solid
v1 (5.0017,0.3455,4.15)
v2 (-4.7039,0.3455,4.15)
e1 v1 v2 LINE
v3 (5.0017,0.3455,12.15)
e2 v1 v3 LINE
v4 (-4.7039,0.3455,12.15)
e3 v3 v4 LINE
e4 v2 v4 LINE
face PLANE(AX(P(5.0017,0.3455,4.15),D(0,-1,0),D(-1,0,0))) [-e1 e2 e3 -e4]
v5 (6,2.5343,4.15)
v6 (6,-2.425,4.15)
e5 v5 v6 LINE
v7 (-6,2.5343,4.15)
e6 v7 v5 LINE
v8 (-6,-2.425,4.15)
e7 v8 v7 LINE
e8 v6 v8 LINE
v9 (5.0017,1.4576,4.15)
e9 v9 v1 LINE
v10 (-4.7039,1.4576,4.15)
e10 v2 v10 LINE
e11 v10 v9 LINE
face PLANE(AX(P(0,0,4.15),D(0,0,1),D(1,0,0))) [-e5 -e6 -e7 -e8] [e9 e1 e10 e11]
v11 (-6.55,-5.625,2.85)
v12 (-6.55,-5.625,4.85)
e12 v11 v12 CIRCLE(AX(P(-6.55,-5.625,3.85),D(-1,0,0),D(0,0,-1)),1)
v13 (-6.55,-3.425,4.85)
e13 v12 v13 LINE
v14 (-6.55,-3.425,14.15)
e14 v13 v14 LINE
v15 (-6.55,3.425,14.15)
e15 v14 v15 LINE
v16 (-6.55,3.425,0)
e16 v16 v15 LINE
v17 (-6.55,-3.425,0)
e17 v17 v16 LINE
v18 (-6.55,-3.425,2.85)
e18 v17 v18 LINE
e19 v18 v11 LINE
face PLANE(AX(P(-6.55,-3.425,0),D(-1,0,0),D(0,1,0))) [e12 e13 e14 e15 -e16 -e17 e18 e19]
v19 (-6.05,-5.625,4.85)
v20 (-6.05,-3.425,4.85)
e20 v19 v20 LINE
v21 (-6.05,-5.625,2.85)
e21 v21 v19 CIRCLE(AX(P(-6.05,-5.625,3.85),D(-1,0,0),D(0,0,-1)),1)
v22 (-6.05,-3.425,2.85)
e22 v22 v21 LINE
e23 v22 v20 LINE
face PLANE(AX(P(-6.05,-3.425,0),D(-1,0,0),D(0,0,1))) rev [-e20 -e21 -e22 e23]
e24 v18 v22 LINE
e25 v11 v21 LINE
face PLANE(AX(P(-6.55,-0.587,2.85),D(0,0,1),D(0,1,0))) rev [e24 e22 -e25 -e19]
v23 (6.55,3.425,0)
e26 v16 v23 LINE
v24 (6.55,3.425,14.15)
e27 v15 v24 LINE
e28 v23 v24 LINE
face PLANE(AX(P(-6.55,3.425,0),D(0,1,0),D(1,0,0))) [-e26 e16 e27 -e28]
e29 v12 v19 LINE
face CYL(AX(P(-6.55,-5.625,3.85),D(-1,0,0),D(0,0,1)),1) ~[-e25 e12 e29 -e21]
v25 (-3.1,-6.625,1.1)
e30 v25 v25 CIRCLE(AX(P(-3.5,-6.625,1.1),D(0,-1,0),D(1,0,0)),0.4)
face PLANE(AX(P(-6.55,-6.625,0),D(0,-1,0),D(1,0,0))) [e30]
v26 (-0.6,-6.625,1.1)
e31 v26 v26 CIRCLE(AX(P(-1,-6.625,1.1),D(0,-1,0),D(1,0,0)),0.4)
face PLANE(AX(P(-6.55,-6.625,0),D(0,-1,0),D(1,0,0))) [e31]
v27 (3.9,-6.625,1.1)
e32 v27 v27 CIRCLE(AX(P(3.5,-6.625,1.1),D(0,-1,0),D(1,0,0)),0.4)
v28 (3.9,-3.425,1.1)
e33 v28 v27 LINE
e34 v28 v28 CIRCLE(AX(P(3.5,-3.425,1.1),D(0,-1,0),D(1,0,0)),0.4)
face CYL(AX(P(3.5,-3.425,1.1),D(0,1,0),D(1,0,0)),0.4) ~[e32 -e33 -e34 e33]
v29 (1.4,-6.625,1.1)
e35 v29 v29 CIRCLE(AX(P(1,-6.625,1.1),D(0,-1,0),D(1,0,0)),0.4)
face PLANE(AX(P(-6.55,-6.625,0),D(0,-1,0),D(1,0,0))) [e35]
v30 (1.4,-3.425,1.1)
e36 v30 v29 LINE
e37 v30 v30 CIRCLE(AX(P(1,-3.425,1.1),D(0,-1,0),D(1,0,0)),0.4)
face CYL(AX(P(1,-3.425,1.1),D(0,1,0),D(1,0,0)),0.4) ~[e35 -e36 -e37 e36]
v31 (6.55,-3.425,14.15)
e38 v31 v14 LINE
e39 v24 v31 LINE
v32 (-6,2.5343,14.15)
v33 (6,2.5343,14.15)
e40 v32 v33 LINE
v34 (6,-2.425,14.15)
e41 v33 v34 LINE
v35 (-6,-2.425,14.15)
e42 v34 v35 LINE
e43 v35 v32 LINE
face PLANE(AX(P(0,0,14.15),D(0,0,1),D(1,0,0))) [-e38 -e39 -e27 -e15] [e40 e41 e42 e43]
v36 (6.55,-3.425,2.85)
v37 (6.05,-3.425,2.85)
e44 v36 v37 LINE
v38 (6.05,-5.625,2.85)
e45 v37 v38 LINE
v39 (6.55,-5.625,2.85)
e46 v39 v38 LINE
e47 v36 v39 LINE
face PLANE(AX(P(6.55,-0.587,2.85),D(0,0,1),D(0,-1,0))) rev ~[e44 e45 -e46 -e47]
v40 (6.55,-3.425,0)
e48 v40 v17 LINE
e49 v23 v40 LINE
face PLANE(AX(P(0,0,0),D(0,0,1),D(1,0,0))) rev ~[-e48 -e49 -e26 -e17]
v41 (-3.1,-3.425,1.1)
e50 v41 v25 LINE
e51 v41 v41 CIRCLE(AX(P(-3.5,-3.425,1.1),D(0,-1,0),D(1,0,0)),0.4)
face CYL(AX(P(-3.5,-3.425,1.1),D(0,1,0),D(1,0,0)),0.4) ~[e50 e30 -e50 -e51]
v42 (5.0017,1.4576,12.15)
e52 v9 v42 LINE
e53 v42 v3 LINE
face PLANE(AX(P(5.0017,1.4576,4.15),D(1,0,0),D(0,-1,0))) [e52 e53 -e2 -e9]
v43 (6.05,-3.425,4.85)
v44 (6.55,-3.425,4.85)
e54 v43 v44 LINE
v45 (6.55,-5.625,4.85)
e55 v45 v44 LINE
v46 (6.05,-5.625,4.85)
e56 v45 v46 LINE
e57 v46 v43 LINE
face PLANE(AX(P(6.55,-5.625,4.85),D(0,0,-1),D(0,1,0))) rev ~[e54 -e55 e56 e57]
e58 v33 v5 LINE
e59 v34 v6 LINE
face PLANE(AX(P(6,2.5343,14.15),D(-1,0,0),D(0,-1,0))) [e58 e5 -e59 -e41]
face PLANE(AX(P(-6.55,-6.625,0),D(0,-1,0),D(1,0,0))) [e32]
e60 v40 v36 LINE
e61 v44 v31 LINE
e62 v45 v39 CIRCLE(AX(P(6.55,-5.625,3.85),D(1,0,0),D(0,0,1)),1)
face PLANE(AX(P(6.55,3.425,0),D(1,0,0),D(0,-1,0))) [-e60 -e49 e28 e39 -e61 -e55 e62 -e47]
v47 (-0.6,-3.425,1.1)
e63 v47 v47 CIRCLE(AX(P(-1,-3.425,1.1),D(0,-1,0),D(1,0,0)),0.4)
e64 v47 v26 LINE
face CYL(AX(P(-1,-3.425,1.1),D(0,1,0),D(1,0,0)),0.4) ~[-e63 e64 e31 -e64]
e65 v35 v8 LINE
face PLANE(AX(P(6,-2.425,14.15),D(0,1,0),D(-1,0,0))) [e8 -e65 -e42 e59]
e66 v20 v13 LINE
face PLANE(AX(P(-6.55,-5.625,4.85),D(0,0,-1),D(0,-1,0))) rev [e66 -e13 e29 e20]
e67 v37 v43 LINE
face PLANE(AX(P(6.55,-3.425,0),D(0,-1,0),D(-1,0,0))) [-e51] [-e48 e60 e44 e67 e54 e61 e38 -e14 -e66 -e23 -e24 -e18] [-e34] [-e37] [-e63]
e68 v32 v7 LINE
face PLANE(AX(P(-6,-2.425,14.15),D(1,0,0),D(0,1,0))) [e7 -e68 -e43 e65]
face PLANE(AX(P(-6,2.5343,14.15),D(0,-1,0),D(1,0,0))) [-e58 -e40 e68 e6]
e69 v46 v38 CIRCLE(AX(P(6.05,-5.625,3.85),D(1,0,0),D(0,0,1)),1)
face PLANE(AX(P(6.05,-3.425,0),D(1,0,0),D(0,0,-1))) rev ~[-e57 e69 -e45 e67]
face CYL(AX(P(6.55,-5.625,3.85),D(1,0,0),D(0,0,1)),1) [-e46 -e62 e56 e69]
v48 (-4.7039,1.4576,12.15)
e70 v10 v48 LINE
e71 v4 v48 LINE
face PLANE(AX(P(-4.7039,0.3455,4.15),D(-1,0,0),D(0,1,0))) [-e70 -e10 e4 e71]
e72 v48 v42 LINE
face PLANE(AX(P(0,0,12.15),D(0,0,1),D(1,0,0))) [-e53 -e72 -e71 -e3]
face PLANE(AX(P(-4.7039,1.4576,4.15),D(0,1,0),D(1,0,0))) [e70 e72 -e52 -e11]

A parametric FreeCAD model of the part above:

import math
import FreeCAD as App
import Part
import Sketcher
from FreeCAD import Vector
Q = App.Units.Quantity

doc = App.newDocument("Part")
body = doc.addObject("PartDesign::Body", "Body")

sketch1 = body.newObject("Sketcher::SketchObject", "Sketch")
sketch1.AttachmentSupport = (doc.getObject("XY_Plane"), [""])
sketch1.MapMode = "FlatFace"
sketch1.addGeometry([
    Part.LineSegment(Vector(6.55, 3.425, 0), Vector(-6.55, 3.425, 0)),
    Part.LineSegment(Vector(-6.55, 3.425, 0), Vector(-6.55, -3.425, 0)),
    Part.LineSegment(Vector(-6.55, -3.425, 0), Vector(6.55, -3.425, 0)),
    Part.LineSegment(Vector(6.55, -3.425, 0), Vector(6.55, 3.425, 0)),
], False)
sketch1.addConstraint([
    Sketcher.Constraint("Coincident", 0, 2, 1, 1),
    Sketcher.Constraint("Coincident", 1, 2, 2, 1),
    Sketcher.Constraint("Coincident", 2, 2, 3, 1),
    Sketcher.Constraint("Coincident", 3, 2, 0, 1),
    Sketcher.Constraint("Horizontal", 0),
    Sketcher.Constraint("Vertical", 1),
    Sketcher.Constraint("Horizontal", 2),
    Sketcher.Constraint("Vertical", 3),
    Sketcher.Constraint("Symmetric", 0, 2, 2, 2, -1, 1),
    Sketcher.Constraint("DistanceX", 0, 2, 0, 1, Q("13.1 mm")),
    Sketcher.Constraint("DistanceY", 1, 2, 1, 1, Q("6.85 mm")),
])
pad1 = body.newObject("PartDesign::Pad", "Pad")
pad1.Profile = sketch1
pad1.Length = 14.15

sketch2 = body.newObject("Sketcher::SketchObject", "Sketch001")
sketch2.AttachmentSupport = (doc.getObject("XY_Plane"), [""])
sketch2.MapMode = "FlatFace"
sketch2.AttachmentOffset = App.Placement(Vector(0, 0, 14.15), App.Rotation())
sketch2.addGeometry([
    Part.LineSegment(Vector(6, 2.5343, 0), Vector(-6, 2.5343, 0)),
    Part.LineSegment(Vector(-6, 2.5343, 0), Vector(-6, -2.425, 0)),
    Part.LineSegment(Vector(-6, -2.425, 0), Vector(6, -2.425, 0)),
    Part.LineSegment(Vector(6, -2.425, 0), Vector(6, 2.5343, 0)),
], False)
sketch2.addConstraint([
    Sketcher.Constraint("Coincident", 0, 2, 1, 1),
    Sketcher.Constraint("Coincident", 1, 2, 2, 1),
    Sketcher.Constraint("Coincident", 2, 2, 3, 1),
    Sketcher.Constraint("Coincident", 3, 2, 0, 1),
    Sketcher.Constraint("Horizontal", 0),
    Sketcher.Constraint("Vertical", 1),
    Sketcher.Constraint("Horizontal", 2),
    Sketcher.Constraint("Vertical", 3),
    Sketcher.Constraint("DistanceX", 0, 2, 0, 1, Q("12 mm")),
    Sketcher.Constraint("DistanceX", 0, 2, -1, 1, Q("6 mm")),
    Sketcher.Constraint("DistanceY", 1, 2, 1, 1, Q("4.9593 mm")),
    Sketcher.Constraint("DistanceY", 1, 2, -1, 1, Q("2.425 mm")),
])
pocket1 = body.newObject("PartDesign::Pocket", "Pocket")
pocket1.Profile = sketch2
pocket1.Length = 10

sketch3 = body.newObject("Sketcher::SketchObject", "Sketch002")
sketch3.AttachmentSupport = (doc.getObject("XY_Plane"), [""])
sketch3.MapMode = "FlatFace"
sketch3.AttachmentOffset = App.Placement(Vector(0, 0, 4.15), App.Rotation())
sketch3.addGeometry([
    Part.LineSegment(Vector(5.0017, 1.4576, 0), Vector(-4.7039, 1.4576, 0)),
    Part.LineSegment(Vector(-4.7039, 1.4576, 0), Vector(-4.7039, 0.3455, 0)),
    Part.LineSegment(Vector(-4.7039, 0.3455, 0), Vector(5.0017, 0.3455, 0)),
    Part.LineSegment(Vector(5.0017, 0.3455, 0), Vector(5.0017, 1.4576, 0)),
], False)
sketch3.addConstraint([
    Sketcher.Constraint("Coincident", 0, 2, 1, 1),
    Sketcher.Constraint("Coincident", 1, 2, 2, 1),
    Sketcher.Constraint("Coincident", 2, 2, 3, 1),
    Sketcher.Constraint("Coincident", 3, 2, 0, 1),
    Sketcher.Constraint("Horizontal", 0),
    Sketcher.Constraint("Vertical", 1),
    Sketcher.Constraint("Horizontal", 2),
    Sketcher.Constraint("Vertical", 3),
    Sketcher.Constraint("DistanceY", 1, 2, 1, 1, Q("1.112 mm")),
    Sketcher.Constraint("DistanceX", 0, 2, 0, 1, Q("9.7056 mm")),
    Sketcher.Constraint("DistanceX", 0, 2, -1, 1, Q("4.704 mm")),
    Sketcher.Constraint("DistanceY", -1, 1, 0, 2, Q("1.4576 mm")),
])
pad2 = body.newObject("PartDesign::Pad", "Pad001")
pad2.Profile = sketch3
pad2.Length = 8

sketch4 = body.newObject("Sketcher::SketchObject", "Sketch003")
sketch4.AttachmentSupport = (doc.getObject("YZ_Plane"), [""])
sketch4.MapMode = "FlatFace"
sketch4.AttachmentOffset = App.Placement(Vector(0, 0, 6.55), App.Rotation())
sketch4.addGeometry([
    Part.LineSegment(Vector(-0.587, 2.85, 0), Vector(-0.587, 4.85, 0)),
    Part.LineSegment(Vector(-0.587, 4.85, 0), Vector(-5.625, 4.85, 0)),
    Part.ArcOfCircle(Part.Circle(Vector(-5.625, 3.85, 0), Vector(0, 0, 1), 1), math.radians(90), math.radians(270)),
    Part.LineSegment(Vector(-5.625, 2.85, 0), Vector(-0.587, 2.85, 0)),
], False)
sketch4.addConstraint([
    Sketcher.Constraint("Coincident", 0, 2, 1, 1),
    Sketcher.Constraint("Tangent", 1, 2, 2, 1),
    Sketcher.Constraint("Tangent", 2, 2, 3, 1),
    Sketcher.Constraint("Coincident", 3, 2, 0, 1),
    Sketcher.Constraint("Vertical", 0),
    Sketcher.Constraint("Horizontal", 1),
    Sketcher.Constraint("Horizontal", 3),
    Sketcher.Constraint("Radius", 2, Q("1 mm")),
    Sketcher.Constraint("DistanceX", 1, 2, 1, 1, Q("5.038 mm")),
    Sketcher.Constraint("DistanceY", -1, 1, 2, 3, Q("3.85 mm")),
    Sketcher.Constraint("DistanceX", 2, 3, -1, 1, Q("5.625 mm")),
])
pad3 = body.newObject("PartDesign::Pad", "Pad002")
pad3.Profile = sketch4
pad3.Length = 0.5
pad3.Reversed = True

sketch5 = body.newObject("Sketcher::SketchObject", "Sketch004")
sketch5.AttachmentSupport = (doc.getObject("XZ_Plane"), [""])
sketch5.MapMode = "FlatFace"
sketch5.AttachmentOffset = App.Placement(Vector(0, 0, 3.425), App.Rotation())
sketch5.addGeometry([
    Part.Circle(Vector(-1, 1.1, 0), Vector(0, 0, 1), 0.4),
    Part.Circle(Vector(1, 1.1, 0), Vector(0, 0, 1), 0.4),
    Part.Circle(Vector(-3.5, 1.1, 0), Vector(0, 0, 1), 0.4),
    Part.Circle(Vector(3.5, 1.1, 0), Vector(0, 0, 1), 0.4),
], False)
sketch5.addConstraint([
    Sketcher.Constraint("Equal", 0, 1),
    Sketcher.Constraint("Equal", 1, 2),
    Sketcher.Constraint("Equal", 2, 3),
    Sketcher.Constraint("Symmetric", 0, 3, 1, 3, -2),
    Sketcher.Constraint("Symmetric", 2, 3, 3, 3, -2),
    Sketcher.Constraint("Horizontal", 1, 3, 2, 3),
    Sketcher.Constraint("Diameter", 0, Q("0.8 mm")),
    Sketcher.Constraint("DistanceX", 0, 3, -1, 1, Q("1 mm")),
    Sketcher.Constraint("DistanceX", 2, 3, 0, 3, Q("2.5 mm")),
    Sketcher.Constraint("DistanceY", -1, 1, 0, 3, Q("1.1 mm")),
])
pad4 = body.newObject("PartDesign::Pad", "Pad003")
pad4.Profile = sketch5
pad4.Length = 3.2
doc.recompute()

mirrored = body.newObject("PartDesign::Mirrored", "Mirrored")
mirrored.Originals = [pad3]
mirrored.MirrorPlane = (doc.getObject("YZ_Plane"), [""])
body.Tip = mirrored

doc.recompute()
